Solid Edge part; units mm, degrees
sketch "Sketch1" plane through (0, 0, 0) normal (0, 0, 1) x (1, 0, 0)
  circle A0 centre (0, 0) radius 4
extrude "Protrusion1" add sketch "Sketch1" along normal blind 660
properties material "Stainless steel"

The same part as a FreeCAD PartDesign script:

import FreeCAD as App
import Part
import Sketcher

V = App.Vector
Q = App.Units.Quantity

doc = App.newDocument("Part")
params = doc.addObject("Spreadsheet::Sheet", "Params")
for row, (alias, value) in enumerate([
    ("sketch1_diameter", "8 mm"),
    ("pad1_length", "660 mm"),
], start=1):
    params.set(f"A{row}", alias)
    params.set(f"B{row}", "=" + value)
    params.setAlias(f"B{row}", alias)

body = doc.addObject("PartDesign::Body", "Body")

sketch1 = body.newObject("Sketcher::SketchObject", "Sketch")
sketch1.AttachmentSupport = (doc.getObject("XY_Plane"), [""])
sketch1.MapMode = "FlatFace"
sketch1.addGeometry(Part.Circle(V(0, 0, 0), V(0, 0, 1), 4), False)
sketch1.addConstraint([
    Sketcher.Constraint("Coincident", 0, 3, -1, 1),
    Sketcher.Constraint("Diameter", 0, Q("8 mm")),
])
sketch1.setExpression("Constraints[1]", "Params.sketch1_diameter")
pad1 = body.newObject("PartDesign::Pad", "Pad")
pad1.Profile = sketch1
pad1.setExpression("Length", "Params.pad1_length")

doc.recompute()
